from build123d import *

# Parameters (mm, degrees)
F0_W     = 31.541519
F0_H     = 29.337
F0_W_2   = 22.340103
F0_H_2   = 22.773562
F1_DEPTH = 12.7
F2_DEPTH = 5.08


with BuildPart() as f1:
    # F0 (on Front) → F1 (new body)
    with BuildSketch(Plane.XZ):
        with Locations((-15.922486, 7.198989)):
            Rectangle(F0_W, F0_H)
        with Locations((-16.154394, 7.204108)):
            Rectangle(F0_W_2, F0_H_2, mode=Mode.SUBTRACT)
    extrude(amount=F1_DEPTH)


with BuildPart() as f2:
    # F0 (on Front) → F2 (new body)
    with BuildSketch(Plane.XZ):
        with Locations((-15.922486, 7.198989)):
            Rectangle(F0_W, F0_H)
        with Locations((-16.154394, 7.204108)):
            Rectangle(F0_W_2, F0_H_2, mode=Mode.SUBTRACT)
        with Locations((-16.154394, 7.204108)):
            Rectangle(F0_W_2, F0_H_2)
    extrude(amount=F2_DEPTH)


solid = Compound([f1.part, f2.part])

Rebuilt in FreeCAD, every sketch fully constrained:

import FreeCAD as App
import Part
import Sketcher
Q = App.Units.Quantity

doc = App.newDocument("Part")
body = doc.addObject("PartDesign::Body", "Body")

sketch1 = body.newObject("Sketcher::SketchObject", "Sketch")
sketch1.AttachmentSupport = (doc.getObject("XZ_Plane"), [""])
sketch1.MapMode = "FlatFace"
sketch1.addGeometry(Part.LineSegment(App.Vector(-32, 22, 0), App.Vector(-32, -7, 0)), False)
sketch1.addGeometry(Part.LineSegment(App.Vector(-32, -7, 0), App.Vector(0, -7, 0)), False)
sketch1.addGeometry(Part.LineSegment(App.Vector(0, -7, 0), App.Vector(0, 22, 0)), False)
sketch1.addGeometry(Part.LineSegment(App.Vector(0, 22, 0), App.Vector(-32, 22, 0)), False)
sketch1.addGeometry(Part.LineSegment(App.Vector(-5, -4, 0), App.Vector(-27, -4, 0)), False)
sketch1.addGeometry(Part.LineSegment(App.Vector(-27, -4, 0), App.Vector(-27, 19, 0)), False)
sketch1.addGeometry(Part.LineSegment(App.Vector(-27, 19, 0), App.Vector(-5, 19, 0)), False)
sketch1.addGeometry(Part.LineSegment(App.Vector(-5, 19, 0), App.Vector(-5, -4, 0)), False)
sketch1.addConstraint(Sketcher.Constraint("Coincident", 0, 2, 1, 1))
sketch1.addConstraint(Sketcher.Constraint("Coincident", 1, 2, 2, 1))
sketch1.addConstraint(Sketcher.Constraint("Coincident", 2, 2, 3, 1))
sketch1.addConstraint(Sketcher.Constraint("Coincident", 3, 2, 0, 1))
sketch1.addConstraint(Sketcher.Constraint("Coincident", 4, 2, 5, 1))
sketch1.addConstraint(Sketcher.Constraint("Coincident", 5, 2, 6, 1))
sketch1.addConstraint(Sketcher.Constraint("Coincident", 6, 2, 7, 1))
sketch1.addConstraint(Sketcher.Constraint("Coincident", 7, 2, 4, 1))
sketch1.addConstraint(Sketcher.Constraint("Vertical", 0))
sketch1.addConstraint(Sketcher.Constraint("Horizontal", 1))
sketch1.addConstraint(Sketcher.Constraint("Vertical", 2))
sketch1.addConstraint(Sketcher.Constraint("Horizontal", 3))
sketch1.addConstraint(Sketcher.Constraint("Horizontal", 4))
sketch1.addConstraint(Sketcher.Constraint("Vertical", 5))
sketch1.addConstraint(Sketcher.Constraint("Horizontal", 6))
sketch1.addConstraint(Sketcher.Constraint("Vertical", 7))
sketch1.addConstraint(Sketcher.Constraint("DistanceY", 0, 2, 0, 1, Q("1.155 in")))
sketch1.addConstraint(Sketcher.Constraint("DistanceX", 0, 2, 4, 2, Q("0.172 in")))
sketch1.addConstraint(Sketcher.Constraint("DistanceY", 5, 2, 3, 2, Q("0.129 in")))
sketch1.addConstraint(Sketcher.Constraint("DistanceX", 1, 1, 1, 2, 31.541519))
sketch1.addConstraint(Sketcher.Constraint("DistanceX", 4, 2, 4, 1, 22.340103))
sketch1.addConstraint(Sketcher.Constraint("DistanceY", 5, 1, 5, 2, 22.773562))
sketch1.addConstraint(Sketcher.Constraint("DistanceY", 0, 2, -1, 1, 7.469511))
sketch1.addConstraint(Sketcher.Constraint("DistanceX", 0, 2, -1, 1, 31.693245))
pad1 = body.newObject("PartDesign::Pad", "Pad")
pad1.Profile = sketch1
pad1.Length = Q("0.5 in")
body2 = doc.addObject("PartDesign::Body", "Body001")

sketch2 = body2.newObject("Sketcher::SketchObject", "Sketch001")
sketch2.AttachmentSupport = (doc.getObject("XZ_Plane001"), [""])
sketch2.MapMode = "FlatFace"
sketch2.addGeometry(Part.LineSegment(App.Vector(-32, 22, 0), App.Vector(-32, -7, 0)), False)
sketch2.addGeometry(Part.LineSegment(App.Vector(-32, -7, 0), App.Vector(0, -7, 0)), False)
sketch2.addGeometry(Part.LineSegment(App.Vector(0, -7, 0), App.Vector(0, 22, 0)), False)
sketch2.addGeometry(Part.LineSegment(App.Vector(0, 22, 0), App.Vector(-32, 22, 0)), False)
sketch2.addConstraint(Sketcher.Constraint("Coincident", 0, 2, 1, 1))
sketch2.addConstraint(Sketcher.Constraint("Coincident", 1, 2, 2, 1))
sketch2.addConstraint(Sketcher.Constraint("Coincident", 2, 2, 3, 1))
sketch2.addConstraint(Sketcher.Constraint("Coincident", 3, 2, 0, 1))
sketch2.addConstraint(Sketcher.Constraint("Vertical", 0))
sketch2.addConstraint(Sketcher.Constraint("Horizontal", 1))
sketch2.addConstraint(Sketcher.Constraint("Vertical", 2))
sketch2.addConstraint(Sketcher.Constraint("Horizontal", 3))
sketch2.addConstraint(Sketcher.Constraint("DistanceY", 0, 2, 0, 1, Q("1.155 in")))
sketch2.addConstraint(Sketcher.Constraint("DistanceX", 1, 1, 1, 2, 31.541519))
sketch2.addConstraint(Sketcher.Constraint("DistanceY", 0, 2, -1, 1, 7.469511))
sketch2.addConstraint(Sketcher.Constraint("DistanceX", 0, 2, -1, 1, 31.693245))
pad2 = body2.newObject("PartDesign::Pad", "Pad001")
pad2.Profile = sketch2
pad2.Length = Q("0.2 in")

doc.recompute()
